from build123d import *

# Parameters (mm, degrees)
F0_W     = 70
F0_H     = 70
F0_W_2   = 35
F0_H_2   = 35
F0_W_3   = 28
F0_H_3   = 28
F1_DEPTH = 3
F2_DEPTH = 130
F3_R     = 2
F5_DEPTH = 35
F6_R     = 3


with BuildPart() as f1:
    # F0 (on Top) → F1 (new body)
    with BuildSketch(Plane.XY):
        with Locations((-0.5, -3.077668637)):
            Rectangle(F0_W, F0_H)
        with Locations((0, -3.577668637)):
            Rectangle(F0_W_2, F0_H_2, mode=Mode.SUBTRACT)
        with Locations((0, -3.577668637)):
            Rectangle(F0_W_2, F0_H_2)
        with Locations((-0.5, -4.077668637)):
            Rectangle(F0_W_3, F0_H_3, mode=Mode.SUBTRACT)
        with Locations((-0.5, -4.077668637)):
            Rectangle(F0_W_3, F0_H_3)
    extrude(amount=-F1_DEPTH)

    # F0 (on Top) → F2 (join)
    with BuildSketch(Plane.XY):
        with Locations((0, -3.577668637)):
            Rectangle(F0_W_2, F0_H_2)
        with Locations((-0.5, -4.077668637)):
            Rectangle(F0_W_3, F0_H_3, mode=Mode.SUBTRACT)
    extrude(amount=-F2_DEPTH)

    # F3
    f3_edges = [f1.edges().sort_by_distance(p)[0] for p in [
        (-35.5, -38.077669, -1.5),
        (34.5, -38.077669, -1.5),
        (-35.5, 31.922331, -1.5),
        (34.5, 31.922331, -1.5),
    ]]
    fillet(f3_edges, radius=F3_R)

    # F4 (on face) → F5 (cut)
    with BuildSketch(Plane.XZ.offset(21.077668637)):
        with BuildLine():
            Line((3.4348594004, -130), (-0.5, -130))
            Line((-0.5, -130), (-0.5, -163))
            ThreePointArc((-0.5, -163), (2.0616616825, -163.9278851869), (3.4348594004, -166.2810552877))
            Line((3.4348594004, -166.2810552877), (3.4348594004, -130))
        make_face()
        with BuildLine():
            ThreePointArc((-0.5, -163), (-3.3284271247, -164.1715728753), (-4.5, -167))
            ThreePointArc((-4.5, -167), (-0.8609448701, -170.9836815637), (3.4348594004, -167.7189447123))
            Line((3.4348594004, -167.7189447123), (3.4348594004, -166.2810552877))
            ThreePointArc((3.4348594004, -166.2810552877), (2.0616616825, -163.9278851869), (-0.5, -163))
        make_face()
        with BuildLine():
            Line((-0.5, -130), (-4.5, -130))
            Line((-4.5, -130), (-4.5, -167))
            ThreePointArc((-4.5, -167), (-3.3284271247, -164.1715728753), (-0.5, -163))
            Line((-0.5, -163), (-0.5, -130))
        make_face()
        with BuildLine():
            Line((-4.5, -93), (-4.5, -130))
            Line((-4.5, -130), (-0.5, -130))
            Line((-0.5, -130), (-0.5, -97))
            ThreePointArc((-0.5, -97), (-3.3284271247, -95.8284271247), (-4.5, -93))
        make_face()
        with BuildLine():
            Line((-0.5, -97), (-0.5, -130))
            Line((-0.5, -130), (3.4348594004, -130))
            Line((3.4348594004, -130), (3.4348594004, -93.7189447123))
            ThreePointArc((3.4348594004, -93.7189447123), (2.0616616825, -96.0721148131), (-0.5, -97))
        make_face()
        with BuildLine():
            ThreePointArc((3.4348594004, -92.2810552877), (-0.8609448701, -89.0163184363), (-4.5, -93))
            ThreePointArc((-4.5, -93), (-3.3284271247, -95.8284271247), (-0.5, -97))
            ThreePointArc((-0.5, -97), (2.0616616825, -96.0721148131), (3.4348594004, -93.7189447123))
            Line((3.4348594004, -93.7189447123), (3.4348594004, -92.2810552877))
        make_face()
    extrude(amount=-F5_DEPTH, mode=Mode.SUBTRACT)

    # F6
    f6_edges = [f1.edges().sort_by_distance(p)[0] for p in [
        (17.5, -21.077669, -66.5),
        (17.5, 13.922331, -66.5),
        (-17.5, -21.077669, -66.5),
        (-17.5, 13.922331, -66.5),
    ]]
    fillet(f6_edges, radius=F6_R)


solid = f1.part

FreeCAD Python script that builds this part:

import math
import FreeCAD as App
import Part
import Sketcher
from FreeCAD import Vector
Q = App.Units.Quantity


def edges_at(feature, points):
    """Names of the edges that pass closest to the given points."""
    edges = feature.Shape.Edges
    near = lambda p: min(range(len(edges)), key=lambda i: edges[i].distToShape(Part.Vertex(*p))[0])
    return sorted({f"Edge{near(p) + 1}" for p in points})

doc = App.newDocument("Part")
params = doc.addObject("Spreadsheet::Sheet", "Params")
for row, (alias, value) in enumerate([
    ("sketch1_width", "70 mm"),
    ("pad1_length", "3 mm"),
    ("sketch2_width", "35 mm"),
    ("sketch2_width2", "28 mm"),
    ("pad2_length", "130 mm"),
    ("fillet_radius", "2 mm"),
    ("sketch3_radius", "4 mm"),
    ("sketch3_height", "74 mm"),
    ("pocket1_length", "35 mm"),
    ("fillet2_radius", "3 mm"),
], start=1):
    params.set(f"A{row}", alias)
    params.set(f"B{row}", "=" + value)
    params.setAlias(f"B{row}", alias)

body = doc.addObject("PartDesign::Body", "Body")

sketch1 = body.newObject("Sketcher::SketchObject", "Sketch")
sketch1.AttachmentSupport = (doc.getObject("XY_Plane"), [""])
sketch1.MapMode = "FlatFace"
sketch1.addGeometry([
    Part.LineSegment(Vector(-35.5, 31.922331, 0), Vector(-35.5, -38.077669, 0)),
    Part.LineSegment(Vector(-35.5, -38.077669, 0), Vector(34.5, -38.077669, 0)),
    Part.LineSegment(Vector(34.5, -38.077669, 0), Vector(34.5, 31.922331, 0)),
    Part.LineSegment(Vector(34.5, 31.922331, 0), Vector(-35.5, 31.922331, 0)),
], False)
sketch1.addConstraint([
    Sketcher.Constraint("Coincident", 0, 2, 1, 1),
    Sketcher.Constraint("Coincident", 1, 2, 2, 1),
    Sketcher.Constraint("Coincident", 2, 2, 3, 1),
    Sketcher.Constraint("Coincident", 3, 2, 0, 1),
    Sketcher.Constraint("Vertical", 0),
    Sketcher.Constraint("Horizontal", 1),
    Sketcher.Constraint("Vertical", 2),
    Sketcher.Constraint("Horizontal", 3),
    Sketcher.Constraint("Equal", 3, 0),
    Sketcher.Constraint("DistanceX", 1, 1, 1, 2, Q("70 mm")),
    Sketcher.Constraint("DistanceX", 0, 2, -1, 1, Q("35.5 mm")),
    Sketcher.Constraint("DistanceY", 0, 2, -1, 1, Q("38.077669 mm")),
])
sketch1.setExpression("Constraints[9]", "Params.sketch1_width")
pad1 = body.newObject("PartDesign::Pad", "Pad")
pad1.Profile = sketch1
pad1.setExpression("Length", "Params.pad1_length")
pad1.Reversed = True

sketch2 = body.newObject("Sketcher::SketchObject", "Sketch001")
sketch2.AttachmentSupport = (doc.getObject("XY_Plane"), [""])
sketch2.MapMode = "FlatFace"
sketch2.addGeometry([
    Part.LineSegment(Vector(-17.5, 13.922331, 0), Vector(-17.5, -21.077669, 0)),
    Part.LineSegment(Vector(-17.5, -21.077669, 0), Vector(17.5, -21.077669, 0)),
    Part.LineSegment(Vector(17.5, -21.077669, 0), Vector(17.5, 13.922331, 0)),
    Part.LineSegment(Vector(17.5, 13.922331, 0), Vector(-17.5, 13.922331, 0)),
    Part.LineSegment(Vector(13.5, -18.077669, 0), Vector(-14.5, -18.077669, 0)),
    Part.LineSegment(Vector(-14.5, -18.077669, 0), Vector(-14.5, 9.922331, 0)),
    Part.LineSegment(Vector(-14.5, 9.922331, 0), Vector(13.5, 9.922331, 0)),
    Part.LineSegment(Vector(13.5, 9.922331, 0), Vector(13.5, -18.077669, 0)),
], False)
sketch2.addConstraint([
    Sketcher.Constraint("Coincident", 0, 2, 1, 1),
    Sketcher.Constraint("Coincident", 1, 2, 2, 1),
    Sketcher.Constraint("Coincident", 2, 2, 3, 1),
    Sketcher.Constraint("Coincident", 3, 2, 0, 1),
    Sketcher.Constraint("Coincident", 4, 2, 5, 1),
    Sketcher.Constraint("Coincident", 5, 2, 6, 1),
    Sketcher.Constraint("Coincident", 6, 2, 7, 1),
    Sketcher.Constraint("Coincident", 7, 2, 4, 1),
    Sketcher.Constraint("Vertical", 0),
    Sketcher.Constraint("Horizontal", 1),
    Sketcher.Constraint("Vertical", 2),
    Sketcher.Constraint("Horizontal", 3),
    Sketcher.Constraint("Horizontal", 4),
    Sketcher.Constraint("Vertical", 5),
    Sketcher.Constraint("Horizontal", 6),
    Sketcher.Constraint("Vertical", 7),
    Sketcher.Constraint("Equal", 3, 0),
    Sketcher.Constraint("Equal", 6, 5),
    Sketcher.Constraint("DistanceX", 1, 1, 1, 2, Q("35 mm")),
    Sketcher.Constraint("DistanceX", 4, 2, 4, 1, Q("28 mm")),
    Sketcher.Constraint("DistanceX", 0, 2, 4, 2, Q("3 mm")),
    Sketcher.Constraint("DistanceY", 0, 2, 4, 2, Q("3 mm")),
    Sketcher.Constraint("DistanceX", 0, 2, -1, 1, Q("17.5 mm")),
    Sketcher.Constraint("DistanceY", 0, 2, -1, 1, Q("21.077669 mm")),
])
sketch2.setExpression("Constraints[18]", "Params.sketch2_width")
sketch2.setExpression("Constraints[19]", "Params.sketch2_width2")
pad2 = body.newObject("PartDesign::Pad", "Pad001")
pad2.Profile = sketch2
pad2.setExpression("Length", "Params.pad2_length")
pad2.Reversed = True
doc.recompute()

fillet = body.newObject("PartDesign::Fillet", "Fillet")
fillet.Base = (pad2, edges_at(pad2, [
    (-35.5, -38.078, -1.5),
    (34.5, -38.078, -1.5),
    (-35.5, 31.922, -1.5),
    (34.5, 31.922, -1.5),
]))
fillet.setExpression("Radius", "Params.fillet_radius")

sketch3 = body.newObject("Sketcher::SketchObject", "Sketch002")
sketch3.AttachmentSupport = (doc.getObject("XZ_Plane"), [""])
sketch3.MapMode = "FlatFace"
sketch3.AttachmentOffset = App.Placement(Vector(0, 0, 21.077669), App.Rotation())
sketch3.addGeometry([
    Part.LineSegment(Vector(-4.5, -93, 0), Vector(-4.5, -167, 0)),
    Part.ArcOfCircle(Part.Circle(Vector(-0.5, -167, 0), Vector(0, 0, 1), 4), math.radians(180), math.radians(349.645607)),
    Part.LineSegment(Vector(3.434859, -167.718945, 0), Vector(3.434859, -92.281055, 0)),
    Part.ArcOfCircle(Part.Circle(Vector(-0.5, -93, 0), Vector(0, 0, 1), 4), math.radians(10.354393), math.radians(180)),
], False)
sketch3.addConstraint([
    Sketcher.Constraint("Tangent", 0, 2, 1, 1),
    Sketcher.Constraint("Coincident", 1, 2, 2, 1),
    Sketcher.Constraint("Coincident", 2, 2, 3, 1),
    Sketcher.Constraint("Tangent", 3, 2, 0, 1),
    Sketcher.Constraint("Vertical", 0),
    Sketcher.Constraint("Vertical", 2),
    Sketcher.Constraint("Equal", 1, 3),
    Sketcher.Constraint("Radius", 1, Q("4 mm")),
    Sketcher.Constraint("DistanceY", 0, 2, 0, 1, Q("74 mm")),
    Sketcher.Constraint("DistanceY", 1, 3, -1, 1, Q("167 mm")),
    Sketcher.Constraint("DistanceX", 1, 3, -1, 1, Q("0.5 mm")),
    Sketcher.Constraint("DistanceY", 2, 1, 2, 2, Q("75.437889 mm")),
])
sketch3.setExpression("Constraints[7]", "Params.sketch3_radius")
sketch3.setExpression("Constraints[8]", "Params.sketch3_height")
pocket1 = body.newObject("PartDesign::Pocket", "Pocket")
pocket1.Profile = sketch3
pocket1.setExpression("Length", "Params.pocket1_length")
doc.recompute()

fillet2 = body.newObject("PartDesign::Fillet", "Fillet001")
fillet2.Base = (pocket1, edges_at(pocket1, [
    (17.5, -21.078, -66.5),
    (17.5, 13.922, -66.5),
    (-17.5, -21.078, -66.5),
    (-17.5, 13.922, -66.5),
]))
fillet2.setExpression("Radius", "Params.fillet2_radius")

doc.recompute()
